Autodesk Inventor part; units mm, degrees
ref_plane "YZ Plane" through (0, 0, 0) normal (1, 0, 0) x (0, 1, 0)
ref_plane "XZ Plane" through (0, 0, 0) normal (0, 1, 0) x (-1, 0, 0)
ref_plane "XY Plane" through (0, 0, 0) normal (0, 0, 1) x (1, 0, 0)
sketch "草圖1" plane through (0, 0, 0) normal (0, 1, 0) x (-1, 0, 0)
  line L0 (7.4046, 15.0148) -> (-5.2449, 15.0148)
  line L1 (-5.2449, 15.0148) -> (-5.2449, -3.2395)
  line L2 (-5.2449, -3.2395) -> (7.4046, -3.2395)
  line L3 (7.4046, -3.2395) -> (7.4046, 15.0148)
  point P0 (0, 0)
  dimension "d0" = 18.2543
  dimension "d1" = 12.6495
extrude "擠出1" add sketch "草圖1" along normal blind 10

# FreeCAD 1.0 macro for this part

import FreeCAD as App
import Part
import Sketcher
Q = App.Units.Quantity


def add_polygon(sketch, points):
    """Adds a closed chain of lines whose ends are joined by coincident constraints."""
    first, n = sketch.GeometryCount, len(points)
    for a, b in zip(points, points[1:] + points[:1]):
        sketch.addGeometry(Part.LineSegment(App.Vector(*a, 0), App.Vector(*b, 0)), False)
    for i in range(n):
        sketch.addConstraint(Sketcher.Constraint("Coincident", first + i, 2, first + (i + 1) % n, 1))

doc = App.newDocument("Part")
body = doc.addObject("PartDesign::Body", "Body")

sketch1 = body.newObject("Sketcher::SketchObject", "Sketch")
sketch1.AttachmentSupport = (doc.getObject("XZ_Plane"), [""])
sketch1.MapMode = "FlatFace"
add_polygon(sketch1, [(-7, -3), (-7, 15), (5, 15), (5, -3)])
sketch1.addConstraint(Sketcher.Constraint("Vertical", 0))
sketch1.addConstraint(Sketcher.Constraint("Horizontal", 1))
sketch1.addConstraint(Sketcher.Constraint("Vertical", 2))
sketch1.addConstraint(Sketcher.Constraint("Horizontal", 3))
sketch1.addConstraint(Sketcher.Constraint("DistanceX", 1, 1, 1, 2, Q("0.498 in")))
sketch1.addConstraint(Sketcher.Constraint("DistanceY", 0, 1, 0, 2, 18.2543))
sketch1.addConstraint(Sketcher.Constraint("DistanceX", -1, 1, 1, 2, Q("0.2065 in")))
sketch1.addConstraint(Sketcher.Constraint("DistanceY", -1, 1, 0, 2, 15.0148))
pad1 = body.newObject("PartDesign::Pad", "Pad")
pad1.Profile = sketch1
pad1.Length = Q("0.3937008 in")
pad1.Reversed = True

doc.recompute()
